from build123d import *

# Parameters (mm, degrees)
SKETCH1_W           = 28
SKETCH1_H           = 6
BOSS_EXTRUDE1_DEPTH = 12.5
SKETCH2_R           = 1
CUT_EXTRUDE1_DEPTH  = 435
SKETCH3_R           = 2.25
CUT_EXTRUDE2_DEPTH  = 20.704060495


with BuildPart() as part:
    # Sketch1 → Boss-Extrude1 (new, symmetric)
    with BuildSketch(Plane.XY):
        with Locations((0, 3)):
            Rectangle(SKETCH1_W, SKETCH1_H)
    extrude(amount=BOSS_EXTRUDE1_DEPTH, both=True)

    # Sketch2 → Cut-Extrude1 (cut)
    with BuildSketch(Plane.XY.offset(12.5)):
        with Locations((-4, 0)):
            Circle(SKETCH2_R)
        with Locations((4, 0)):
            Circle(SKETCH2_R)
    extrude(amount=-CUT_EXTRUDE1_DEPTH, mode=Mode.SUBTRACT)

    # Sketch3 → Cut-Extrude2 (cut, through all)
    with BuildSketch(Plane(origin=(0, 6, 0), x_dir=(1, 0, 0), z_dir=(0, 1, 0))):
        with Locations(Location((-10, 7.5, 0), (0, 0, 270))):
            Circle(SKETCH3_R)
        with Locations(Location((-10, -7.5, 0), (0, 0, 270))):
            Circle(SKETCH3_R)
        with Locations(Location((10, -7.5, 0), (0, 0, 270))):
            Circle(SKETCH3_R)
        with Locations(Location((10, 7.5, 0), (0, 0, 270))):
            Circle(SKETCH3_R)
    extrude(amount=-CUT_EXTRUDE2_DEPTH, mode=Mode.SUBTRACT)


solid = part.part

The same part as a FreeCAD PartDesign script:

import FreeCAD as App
import Part
import Sketcher

V = App.Vector


def add_polygon(sketch, points):
    """Adds a closed chain of lines whose ends are joined by coincident constraints."""
    first, n = sketch.GeometryCount, len(points)
    for a, b in zip(points, points[1:] + points[:1]):
        sketch.addGeometry(Part.LineSegment(App.Vector(*a, 0), App.Vector(*b, 0)), False)
    for i in range(n):
        sketch.addConstraint(Sketcher.Constraint("Coincident", first + i, 2, first + (i + 1) % n, 1))

doc = App.newDocument("Part")
body = doc.addObject("PartDesign::Body", "Body")

# Sketch on XY plane
sketch1 = body.newObject("Sketcher::SketchObject", "Sketch")
sketch1.AttachmentSupport = (doc.getObject("XY_Plane"), [""])
sketch1.MapMode = "FlatFace"
add_polygon(sketch1, [(-14, 6), (-14, 0), (14, 0), (14, 6)])  # lines 0-3
sketch1.addConstraint([
    Sketcher.Constraint("Vertical", 0),
    Sketcher.Constraint("Horizontal", 1),
    Sketcher.Constraint("Vertical", 2),
    Sketcher.Constraint("Horizontal", 3),
    Sketcher.Constraint("Symmetric", 0, 2, 1, 2, -1, 1),
    Sketcher.Constraint("DistanceX", 1, 1, 1, 2, 28.0),
    Sketcher.Constraint("DistanceY", 0, 2, 0, 1, 6.0),
])
pad1 = body.newObject("PartDesign::Pad", "Pad")
pad1.Profile = sketch1
pad1.Length = 25
pad1.Midplane = True

# Sketch on XY plane
sketch2 = body.newObject("Sketcher::SketchObject", "Sketch001")
sketch2.AttachmentSupport = (doc.getObject("XY_Plane"), [""])
sketch2.MapMode = "FlatFace"
sketch2.AttachmentOffset = App.Placement(V(0, 0, 12.5), App.Rotation())
sketch2.addGeometry([
    Part.Circle(V(-4, 0, 0), V(0, 0, 1), 1),
    Part.Circle(V(4, 0, 0), V(0, 0, 1), 1),
], False)
sketch2.addConstraint([
    Sketcher.Constraint("Equal", 0, 1),
    Sketcher.Constraint("Symmetric", 0, 3, 1, 3, -1, 1),
    Sketcher.Constraint("PointOnObject", 0, 3, -1),
    Sketcher.Constraint("Diameter", 0, 2.0),
    Sketcher.Constraint("DistanceX", 0, 3, -1, 1, 4.0),
])
pocket1 = body.newObject("PartDesign::Pocket", "Pocket")
pocket1.Profile = sketch2
pocket1.Length = 435

# Sketch on XZ plane
sketch3 = body.newObject("Sketcher::SketchObject", "Sketch002")
sketch3.AttachmentSupport = (doc.getObject("XZ_Plane"), [""])
sketch3.MapMode = "FlatFace"
sketch3.AttachmentOffset = App.Placement(V(0, 0, -6), App.Rotation())
sketch3.addGeometry([
    Part.Circle(V(-10, -7.5, 0), V(0, 0, 1), 2.2),
    Part.Circle(V(-10, 7.5, 0), V(0, 0, 1), 2.2),
    Part.Circle(V(10, 7.5, 0), V(0, 0, 1), 2.2),
    Part.Circle(V(10, -7.5, 0), V(0, 0, 1), 2.2),
], False)
sketch3.addConstraint([
    Sketcher.Constraint("Equal", 0, 1),
    Sketcher.Constraint("Equal", 1, 2),
    Sketcher.Constraint("Equal", 2, 3),
    Sketcher.Constraint("Symmetric", 0, 3, 2, 3, -1, 1),
    Sketcher.Constraint("Symmetric", 1, 3, 3, 3, -1, 1),
    Sketcher.Constraint("Symmetric", 1, 3, 2, 3, -2),
    Sketcher.Constraint("Diameter", 0, 4.5),
    Sketcher.Constraint("DistanceX", 0, 3, -1, 1, 10.0),
    Sketcher.Constraint("DistanceY", 0, 3, 1, 3, 15.0),
])
pocket2 = body.newObject("PartDesign::Pocket", "Pocket001")
pocket2.Profile = sketch3
pocket2.Type = "ThroughAll"
pocket2.Reversed = True

doc.recompute()
